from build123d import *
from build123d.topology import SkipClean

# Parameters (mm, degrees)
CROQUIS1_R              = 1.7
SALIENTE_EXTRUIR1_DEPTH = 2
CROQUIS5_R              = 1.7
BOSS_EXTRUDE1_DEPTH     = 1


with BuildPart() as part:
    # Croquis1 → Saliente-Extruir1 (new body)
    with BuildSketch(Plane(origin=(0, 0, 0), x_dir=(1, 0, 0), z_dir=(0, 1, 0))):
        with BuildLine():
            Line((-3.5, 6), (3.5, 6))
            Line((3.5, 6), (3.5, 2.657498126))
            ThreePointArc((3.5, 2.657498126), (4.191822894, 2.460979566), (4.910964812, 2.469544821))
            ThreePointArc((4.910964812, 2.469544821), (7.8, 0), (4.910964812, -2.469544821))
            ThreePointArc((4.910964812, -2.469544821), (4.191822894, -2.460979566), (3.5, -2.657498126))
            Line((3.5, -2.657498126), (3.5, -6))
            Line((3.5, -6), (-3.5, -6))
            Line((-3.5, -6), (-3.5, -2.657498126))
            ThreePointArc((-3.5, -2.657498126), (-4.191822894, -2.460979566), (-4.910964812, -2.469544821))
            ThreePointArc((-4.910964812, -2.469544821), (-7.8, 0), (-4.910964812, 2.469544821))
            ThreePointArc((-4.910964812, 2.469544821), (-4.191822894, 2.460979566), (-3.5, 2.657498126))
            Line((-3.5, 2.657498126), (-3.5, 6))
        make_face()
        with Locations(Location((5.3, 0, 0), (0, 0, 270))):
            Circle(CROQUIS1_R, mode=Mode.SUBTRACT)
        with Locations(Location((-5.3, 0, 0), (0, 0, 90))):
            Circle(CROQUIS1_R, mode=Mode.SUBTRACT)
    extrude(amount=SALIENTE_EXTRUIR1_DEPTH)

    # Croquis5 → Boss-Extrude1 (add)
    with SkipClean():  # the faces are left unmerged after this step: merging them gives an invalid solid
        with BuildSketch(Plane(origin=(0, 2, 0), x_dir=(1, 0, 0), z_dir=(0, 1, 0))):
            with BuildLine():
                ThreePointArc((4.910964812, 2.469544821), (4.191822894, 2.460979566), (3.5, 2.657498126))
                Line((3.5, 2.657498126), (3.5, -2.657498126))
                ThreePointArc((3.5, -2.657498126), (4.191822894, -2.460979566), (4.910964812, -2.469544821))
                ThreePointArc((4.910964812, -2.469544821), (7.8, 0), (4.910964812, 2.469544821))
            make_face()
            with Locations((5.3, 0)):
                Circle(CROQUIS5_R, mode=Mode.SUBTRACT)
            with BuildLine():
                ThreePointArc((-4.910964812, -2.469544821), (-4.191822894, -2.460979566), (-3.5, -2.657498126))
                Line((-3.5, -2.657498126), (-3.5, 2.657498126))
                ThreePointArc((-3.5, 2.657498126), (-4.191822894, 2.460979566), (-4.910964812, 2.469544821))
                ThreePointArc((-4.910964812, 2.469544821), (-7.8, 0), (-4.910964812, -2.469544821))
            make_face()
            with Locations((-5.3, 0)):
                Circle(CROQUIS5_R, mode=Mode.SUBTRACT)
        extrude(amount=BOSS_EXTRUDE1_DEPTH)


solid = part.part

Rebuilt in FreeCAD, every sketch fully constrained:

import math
import FreeCAD as App
import Part
import Sketcher

V = App.Vector
Q = App.Units.Quantity

doc = App.newDocument("Part")
body = doc.addObject("PartDesign::Body", "Body")

sketch1 = doc.addObject("Sketcher::SketchObject", "Sketch")
body.addObject(sketch1)
sketch1.AttachmentSupport = (doc.XZ_Plane, [""])
sketch1.MapMode = "FlatFace"
sketch1.addGeometry([
    Part.LineSegment(V(3.5, -6, 0), V(-3.5, -6, 0)),
    Part.LineSegment(V(-3.5, -6, 0), V(-3.5, -2.7, 0)),
    Part.ArcOfCircle(Part.Circle(V(-4.5, -4.9, 0), V(0, 0, 1), 2.5), math.radians(66), math.radians(99)),
    Part.ArcOfCircle(Part.Circle(V(-5.3, 0, 0), V(0, 0, 1), 2.5), math.radians(81), math.radians(279)),
    Part.ArcOfCircle(Part.Circle(V(-4.5, 4.9, 0), V(0, 0, 1), 2.5), math.radians(-99), math.radians(-66)),
    Part.LineSegment(V(-3.5, 2.7, 0), V(-3.5, 6, 0)),
    Part.LineSegment(V(-3.5, 6, 0), V(3.5, 6, 0)),
    Part.LineSegment(V(3.5, 6, 0), V(3.5, 2.7, 0)),
    Part.ArcOfCircle(Part.Circle(V(4.5, 4.9, 0), V(0, 0, 1), 2.5), math.radians(-114), math.radians(-81)),
    Part.ArcOfCircle(Part.Circle(V(5.3, 0, 0), V(0, 0, 1), 2.5), math.radians(-99), math.radians(99)),
    Part.ArcOfCircle(Part.Circle(V(4.5, -4.9, 0), V(0, 0, 1), 2.5), math.radians(81), math.radians(114)),
    Part.LineSegment(V(3.5, -2.7, 0), V(3.5, -6, 0)),
    Part.Circle(V(5.3, 0, 0), V(0, 0, 1), 1.7),
    Part.Circle(V(-5.3, 0, 0), V(0, 0, 1), 1.7),
], False)
sketch1.addConstraint([
    Sketcher.Constraint("Coincident", 0, 2, 1, 1),
    Sketcher.Constraint("Coincident", 1, 2, 2, 1),
    Sketcher.Constraint("Tangent", 2, 2, 3, 2),
    Sketcher.Constraint("Tangent", 3, 1, 4, 1),
    Sketcher.Constraint("Coincident", 4, 2, 5, 1),
    Sketcher.Constraint("Coincident", 5, 2, 6, 1),
    Sketcher.Constraint("Coincident", 6, 2, 7, 1),
    Sketcher.Constraint("Coincident", 7, 2, 8, 1),
    Sketcher.Constraint("Tangent", 8, 2, 9, 2),
    Sketcher.Constraint("Tangent", 9, 1, 10, 1),
    Sketcher.Constraint("Coincident", 10, 2, 11, 1),
    Sketcher.Constraint("Coincident", 11, 2, 0, 1),
    Sketcher.Constraint("Horizontal", 0),
    Sketcher.Constraint("Vertical", 1),
    Sketcher.Constraint("Vertical", 5),
    Sketcher.Constraint("Horizontal", 6),
    Sketcher.Constraint("Vertical", 7),
    Sketcher.Constraint("Vertical", 11),
    Sketcher.Constraint("Coincident", 12, 3, 9, 3),
    Sketcher.Constraint("Coincident", 13, 3, 3, 3),
    Sketcher.Constraint("Equal", 2, 3),
    Sketcher.Constraint("Equal", 3, 4),
    Sketcher.Constraint("Equal", 4, 8),
    Sketcher.Constraint("Equal", 8, 9),
    Sketcher.Constraint("Equal", 9, 10),
    Sketcher.Constraint("Equal", 12, 13),
    Sketcher.Constraint("Symmetric", 2, 3, 8, 3, -1, 1),
    Sketcher.Constraint("Symmetric", 4, 3, 10, 3, -1, 1),
    Sketcher.Constraint("Symmetric", 0, 2, 6, 2, -1, 1),
    Sketcher.Constraint("Symmetric", 4, 3, 8, 3, -2),
    Sketcher.Constraint("Horizontal", 4, 2, 7, 2),
    Sketcher.Constraint("Horizontal", 1, 2, 10, 2),
    Sketcher.Constraint("Diameter", 12, Q("3.4 mm")),
    Sketcher.Constraint("Radius", 2, Q("2.5 mm")),
    Sketcher.Constraint("DistanceX", 0, 2, 0, 1, Q("7 mm")),
    Sketcher.Constraint("DistanceY", 0, 2, -1, 1, Q("6 mm")),
    Sketcher.Constraint("DistanceX", 3, 3, -1, 1, Q("5.3 mm")),
    Sketcher.Constraint("DistanceY", 1, 1, 1, 2, Q("3.342502 mm")),
])
pad1 = doc.addObject("PartDesign::Pad", "Pad")
body.addObject(pad1)
pad1.Profile = sketch1
pad1.Length = 2
pad1.Reversed = True

sketch2 = doc.addObject("Sketcher::SketchObject", "Sketch001")
body.addObject(sketch2)
sketch2.AttachmentSupport = (doc.XZ_Plane, [""])
sketch2.MapMode = "FlatFace"
sketch2.AttachmentOffset = App.Placement(V(0, 0, -2), App.Rotation())
sketch2.addGeometry([
    Part.ArcOfCircle(Part.Circle(V(4.5, -4.9, 0), V(0, 0, 1), 2.5), math.radians(81), math.radians(114)),
    Part.LineSegment(V(3.5, -2.7, 0), V(3.5, 2.7, 0)),
    Part.ArcOfCircle(Part.Circle(V(4.5, 4.9, 0), V(0, 0, 1), 2.5), math.radians(-114), math.radians(-81)),
    Part.ArcOfCircle(Part.Circle(V(5.3, 0, 0), V(0, 0, 1), 2.5), math.radians(-99), math.radians(99)),
    Part.Circle(V(5.3, 0, 0), V(0, 0, 1), 1.7),
    Part.ArcOfCircle(Part.Circle(V(-4.5, 4.9, 0), V(0, 0, 1), 2.5), math.radians(-99), math.radians(-66)),
    Part.LineSegment(V(-3.5, 2.7, 0), V(-3.5, -2.7, 0)),
    Part.ArcOfCircle(Part.Circle(V(-4.5, -4.9, 0), V(0, 0, 1), 2.5), math.radians(66), math.radians(99)),
    Part.ArcOfCircle(Part.Circle(V(-5.3, 0, 0), V(0, 0, 1), 2.5), math.radians(81), math.radians(279)),
    Part.Circle(V(-5.3, 0, 0), V(0, 0, 1), 1.7),
], False)
sketch2.addConstraint([
    Sketcher.Constraint("Coincident", 0, 2, 1, 1),
    Sketcher.Constraint("Coincident", 1, 2, 2, 1),
    Sketcher.Constraint("Tangent", 2, 2, 3, 2),
    Sketcher.Constraint("Tangent", 3, 1, 0, 1),
    Sketcher.Constraint("Coincident", 5, 2, 6, 1),
    Sketcher.Constraint("Coincident", 6, 2, 7, 1),
    Sketcher.Constraint("Tangent", 7, 2, 8, 2),
    Sketcher.Constraint("Tangent", 8, 1, 5, 1),
    Sketcher.Constraint("Vertical", 1),
    Sketcher.Constraint("Vertical", 6),
    Sketcher.Constraint("Coincident", 4, 3, 3, 3),
    Sketcher.Constraint("Coincident", 9, 3, 8, 3),
    Sketcher.Constraint("Equal", 0, 2),
    Sketcher.Constraint("Equal", 2, 3),
    Sketcher.Constraint("Equal", 3, 5),
    Sketcher.Constraint("Equal", 5, 7),
    Sketcher.Constraint("Equal", 7, 8),
    Sketcher.Constraint("Equal", 4, 9),
    Sketcher.Constraint("Symmetric", 0, 3, 5, 3, -1, 1),
    Sketcher.Constraint("Symmetric", 2, 3, 7, 3, -1, 1),
    Sketcher.Constraint("Symmetric", 2, 3, 5, 3, -2),
    Sketcher.Constraint("Horizontal", 1, 2, 5, 2),
    Sketcher.Constraint("Diameter", 4, Q("3.4 mm")),
    Sketcher.Constraint("Radius", 0, Q("2.5 mm")),
    Sketcher.Constraint("DistanceX", 5, 2, 1, 2, Q("7 mm")),
    Sketcher.Constraint("DistanceX", -1, 1, 3, 3, Q("5.3 mm")),
    Sketcher.Constraint("DistanceY", 0, 2, -1, 1, Q("2.657498 mm")),
])
pad2 = doc.addObject("PartDesign::Pad", "Pad001")
body.addObject(pad2)
pad2.Profile = sketch2
pad2.Length = 1
pad2.Reversed = True

doc.recompute()
